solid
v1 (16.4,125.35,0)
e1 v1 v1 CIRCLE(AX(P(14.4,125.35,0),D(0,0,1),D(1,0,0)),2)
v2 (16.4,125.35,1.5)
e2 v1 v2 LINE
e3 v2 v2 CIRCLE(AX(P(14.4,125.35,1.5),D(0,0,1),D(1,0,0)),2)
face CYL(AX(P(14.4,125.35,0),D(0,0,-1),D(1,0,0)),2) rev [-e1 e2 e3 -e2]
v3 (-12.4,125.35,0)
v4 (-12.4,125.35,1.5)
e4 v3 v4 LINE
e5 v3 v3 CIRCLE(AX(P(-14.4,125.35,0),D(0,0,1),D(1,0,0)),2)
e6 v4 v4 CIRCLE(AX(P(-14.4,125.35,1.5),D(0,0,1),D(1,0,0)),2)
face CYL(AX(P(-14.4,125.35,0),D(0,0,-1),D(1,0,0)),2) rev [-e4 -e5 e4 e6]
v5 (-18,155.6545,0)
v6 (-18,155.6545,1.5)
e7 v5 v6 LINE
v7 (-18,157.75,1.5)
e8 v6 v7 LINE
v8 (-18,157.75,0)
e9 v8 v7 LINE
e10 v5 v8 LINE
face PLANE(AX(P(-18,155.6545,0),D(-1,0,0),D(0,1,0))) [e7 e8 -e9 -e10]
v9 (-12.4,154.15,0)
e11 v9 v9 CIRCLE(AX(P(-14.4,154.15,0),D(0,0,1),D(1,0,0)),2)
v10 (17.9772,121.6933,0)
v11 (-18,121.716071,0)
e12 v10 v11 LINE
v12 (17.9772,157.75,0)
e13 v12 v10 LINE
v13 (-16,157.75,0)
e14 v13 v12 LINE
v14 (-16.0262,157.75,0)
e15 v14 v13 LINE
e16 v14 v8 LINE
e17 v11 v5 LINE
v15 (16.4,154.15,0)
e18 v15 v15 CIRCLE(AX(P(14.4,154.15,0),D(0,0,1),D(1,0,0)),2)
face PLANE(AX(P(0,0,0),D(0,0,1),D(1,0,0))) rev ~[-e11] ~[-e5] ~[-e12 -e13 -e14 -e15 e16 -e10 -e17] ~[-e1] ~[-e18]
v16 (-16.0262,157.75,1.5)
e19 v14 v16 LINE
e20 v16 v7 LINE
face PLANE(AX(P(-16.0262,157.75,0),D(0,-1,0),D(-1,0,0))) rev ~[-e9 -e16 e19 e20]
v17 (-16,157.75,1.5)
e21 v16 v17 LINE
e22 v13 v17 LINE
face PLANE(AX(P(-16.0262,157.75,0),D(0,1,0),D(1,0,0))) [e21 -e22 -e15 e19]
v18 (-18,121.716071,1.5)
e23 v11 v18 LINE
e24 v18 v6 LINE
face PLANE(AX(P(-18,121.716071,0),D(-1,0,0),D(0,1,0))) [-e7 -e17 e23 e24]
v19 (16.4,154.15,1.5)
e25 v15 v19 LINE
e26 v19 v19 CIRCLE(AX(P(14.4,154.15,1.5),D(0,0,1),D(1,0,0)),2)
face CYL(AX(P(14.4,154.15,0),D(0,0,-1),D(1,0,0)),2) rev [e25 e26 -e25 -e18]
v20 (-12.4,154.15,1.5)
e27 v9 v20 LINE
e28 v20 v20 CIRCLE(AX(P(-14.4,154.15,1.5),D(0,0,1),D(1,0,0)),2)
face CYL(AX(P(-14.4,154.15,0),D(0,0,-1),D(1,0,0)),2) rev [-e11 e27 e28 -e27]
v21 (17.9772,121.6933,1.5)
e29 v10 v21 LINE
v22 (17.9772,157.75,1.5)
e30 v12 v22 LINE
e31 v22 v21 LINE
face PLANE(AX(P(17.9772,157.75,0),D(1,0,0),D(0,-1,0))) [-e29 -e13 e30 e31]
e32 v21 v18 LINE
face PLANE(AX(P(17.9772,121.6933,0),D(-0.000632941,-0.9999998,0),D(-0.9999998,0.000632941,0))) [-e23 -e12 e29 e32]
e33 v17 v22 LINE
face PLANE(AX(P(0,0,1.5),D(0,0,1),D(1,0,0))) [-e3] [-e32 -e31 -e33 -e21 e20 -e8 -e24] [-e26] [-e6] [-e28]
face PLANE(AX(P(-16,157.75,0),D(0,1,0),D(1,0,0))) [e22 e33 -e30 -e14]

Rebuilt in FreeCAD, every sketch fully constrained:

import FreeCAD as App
import Part
import Sketcher
Q = App.Units.Quantity


def add_polygon(sketch, points):
    """Adds a closed chain of lines whose ends are joined by coincident constraints."""
    first, n = sketch.GeometryCount, len(points)
    for a, b in zip(points, points[1:] + points[:1]):
        sketch.addGeometry(Part.LineSegment(App.Vector(*a, 0), App.Vector(*b, 0)), False)
    for i in range(n):
        sketch.addConstraint(Sketcher.Constraint("Coincident", first + i, 2, first + (i + 1) % n, 1))

doc = App.newDocument("Part")
body = doc.addObject("PartDesign::Body", "Body")

sketch1 = body.newObject("Sketcher::SketchObject", "Sketch")
sketch1.AttachmentSupport = (doc.getObject("XY_Plane"), [""])
sketch1.MapMode = "FlatFace"
add_polygon(sketch1, [(17.9772, 157.75), (-18, 157.75), (-18, 121.716071), (17.9772, 121.6933)])
sketch1.addGeometry(Part.Circle(App.Vector(-14.4, 125.35, 0), App.Vector(0, 0, 1), 2), False)
sketch1.addGeometry(Part.Circle(App.Vector(14.4, 125.35, 0), App.Vector(0, 0, 1), 2), False)
sketch1.addGeometry(Part.Circle(App.Vector(-14.4, 154.15, 0), App.Vector(0, 0, 1), 2), False)
sketch1.addGeometry(Part.Circle(App.Vector(14.4, 154.15, 0), App.Vector(0, 0, 1), 2), False)
sketch1.addConstraint([
    Sketcher.Constraint("Horizontal", 0),
    Sketcher.Constraint("Vertical", 1),
    Sketcher.Constraint("Vertical", 3),
    Sketcher.Constraint("Equal", 4, 5),
    Sketcher.Constraint("Equal", 5, 6),
    Sketcher.Constraint("Equal", 6, 7),
    Sketcher.Constraint("Symmetric", 4, 3, 5, 3, -2),
    Sketcher.Constraint("Symmetric", 6, 3, 7, 3, -2),
    Sketcher.Constraint("Vertical", 4, 3, 6, 3),
    Sketcher.Constraint("Diameter", 4, Q("4 mm")),
    Sketcher.Constraint("DistanceX", 0, 2, -1, 1, Q("18 mm")),
    Sketcher.Constraint("DistanceX", 4, 3, -1, 1, Q("14.4 mm")),
    Sketcher.Constraint("DistanceY", 4, 3, 6, 3, Q("28.8 mm")),
    Sketcher.Constraint("DistanceY", 6, 3, 0, 2, Q("3.6 mm")),
    Sketcher.Constraint("DistanceY", 1, 2, 1, 1, Q("36.034 mm")),
    Sketcher.Constraint("DistanceY", -1, 1, 4, 3, Q("125.35 mm")),
    Sketcher.Constraint("DistanceX", 0, 2, 0, 1, Q("35.9772 mm")),
    Sketcher.Constraint("DistanceY", 3, 1, 3, 2, Q("36.0567 mm")),
])
pad1 = body.newObject("PartDesign::Pad", "Pad")
pad1.Profile = sketch1
pad1.Length = 1.5

doc.recompute()
